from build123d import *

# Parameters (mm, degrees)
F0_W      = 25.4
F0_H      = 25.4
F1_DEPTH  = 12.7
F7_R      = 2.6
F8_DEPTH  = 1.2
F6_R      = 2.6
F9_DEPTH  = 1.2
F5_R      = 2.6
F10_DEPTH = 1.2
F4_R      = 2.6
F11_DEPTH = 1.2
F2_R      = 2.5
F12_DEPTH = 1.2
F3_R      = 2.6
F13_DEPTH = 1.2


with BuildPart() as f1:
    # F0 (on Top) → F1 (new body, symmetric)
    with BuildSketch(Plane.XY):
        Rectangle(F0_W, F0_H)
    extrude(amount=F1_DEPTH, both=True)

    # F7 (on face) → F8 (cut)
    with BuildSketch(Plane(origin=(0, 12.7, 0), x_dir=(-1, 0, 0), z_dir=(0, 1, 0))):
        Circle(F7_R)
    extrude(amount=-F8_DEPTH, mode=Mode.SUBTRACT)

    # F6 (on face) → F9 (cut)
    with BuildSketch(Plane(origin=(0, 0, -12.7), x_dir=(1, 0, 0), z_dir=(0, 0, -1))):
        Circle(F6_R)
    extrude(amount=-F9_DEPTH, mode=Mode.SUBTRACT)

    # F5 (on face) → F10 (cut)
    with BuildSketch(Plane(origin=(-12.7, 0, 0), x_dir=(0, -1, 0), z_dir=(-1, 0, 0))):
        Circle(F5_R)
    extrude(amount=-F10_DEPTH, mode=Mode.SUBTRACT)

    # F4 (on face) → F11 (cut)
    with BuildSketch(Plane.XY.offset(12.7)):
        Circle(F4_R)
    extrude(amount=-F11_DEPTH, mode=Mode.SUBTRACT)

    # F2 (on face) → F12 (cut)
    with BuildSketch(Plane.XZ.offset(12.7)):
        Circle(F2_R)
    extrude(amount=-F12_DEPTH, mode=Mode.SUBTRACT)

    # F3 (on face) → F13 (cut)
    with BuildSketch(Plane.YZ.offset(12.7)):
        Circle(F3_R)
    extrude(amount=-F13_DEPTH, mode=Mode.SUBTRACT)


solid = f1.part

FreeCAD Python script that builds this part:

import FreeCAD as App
import Part
import Sketcher
from FreeCAD import Vector


def add_polygon(sketch, points):
    """Adds a closed chain of lines whose ends are joined by coincident constraints."""
    first, n = sketch.GeometryCount, len(points)
    for a, b in zip(points, points[1:] + points[:1]):
        sketch.addGeometry(Part.LineSegment(App.Vector(*a, 0), App.Vector(*b, 0)), False)
    for i in range(n):
        sketch.addConstraint(Sketcher.Constraint("Coincident", first + i, 2, first + (i + 1) % n, 1))

doc = App.newDocument("Part")
body = doc.addObject("PartDesign::Body", "Body")

# Sketch on XY plane
sketch1 = doc.addObject("Sketcher::SketchObject", "Sketch")
body.addObject(sketch1)
sketch1.AttachmentSupport = (doc.XY_Plane, [""])
sketch1.MapMode = "FlatFace"
add_polygon(sketch1, [(-13, 13), (-13, -13), (13, -13), (13, 13)])  # lines 0-3
sketch1.addConstraint(Sketcher.Constraint("Vertical", 0))
sketch1.addConstraint(Sketcher.Constraint("Horizontal", 1))
sketch1.addConstraint(Sketcher.Constraint("Vertical", 2))
sketch1.addConstraint(Sketcher.Constraint("Horizontal", 3))
sketch1.addConstraint(Sketcher.Constraint("Symmetric", 0, 2, 2, 2, -1, 1))
sketch1.addConstraint(Sketcher.Constraint("Equal", 3, 0))
sketch1.addConstraint(Sketcher.Constraint("DistanceX", 1, 1, 1, 2, 25.4))
pad1 = doc.addObject("PartDesign::Pad", "Pad")
body.addObject(pad1)
pad1.Profile = sketch1
pad1.Length = 25.4
pad1.Midplane = True

# Sketch on XZ plane
sketch2 = doc.addObject("Sketcher::SketchObject", "Sketch001")
body.addObject(sketch2)
sketch2.AttachmentSupport = (doc.XZ_Plane, [""])
sketch2.MapMode = "FlatFace"
sketch2.AttachmentOffset = App.Placement(Vector(0, 0, -12.7), App.Rotation())
sketch2.addGeometry(Part.Circle(Vector(0, 0, 0), Vector(0, 0, 1), 2.6), False)
sketch2.addConstraint(Sketcher.Constraint("Coincident", 0, 3, -1, 1))
sketch2.addConstraint(Sketcher.Constraint("Diameter", 0, 5.2))
pocket1 = doc.addObject("PartDesign::Pocket", "Pocket")
body.addObject(pocket1)
pocket1.Profile = sketch2
pocket1.Length = 1.2
pocket1.Reversed = True

# Sketch on XY plane
sketch3 = doc.addObject("Sketcher::SketchObject", "Sketch002")
body.addObject(sketch3)
sketch3.AttachmentSupport = (doc.XY_Plane, [""])
sketch3.MapMode = "FlatFace"
sketch3.AttachmentOffset = App.Placement(Vector(0, 0, -12.7), App.Rotation())
sketch3.addGeometry(Part.Circle(Vector(0, 0, 0), Vector(0, 0, 1), 2.6), False)
sketch3.addConstraint(Sketcher.Constraint("Coincident", 0, 3, -1, 1))
sketch3.addConstraint(Sketcher.Constraint("Diameter", 0, 5.2))
pocket2 = doc.addObject("PartDesign::Pocket", "Pocket001")
body.addObject(pocket2)
pocket2.Profile = sketch3
pocket2.Length = 1.2
pocket2.Reversed = True

# Sketch on YZ plane
sketch4 = doc.addObject("Sketcher::SketchObject", "Sketch003")
body.addObject(sketch4)
sketch4.AttachmentSupport = (doc.YZ_Plane, [""])
sketch4.MapMode = "FlatFace"
sketch4.AttachmentOffset = App.Placement(Vector(0, 0, -12.7), App.Rotation())
sketch4.addGeometry(Part.Circle(Vector(0, 0, 0), Vector(0, 0, 1), 2.6), False)
sketch4.addConstraint(Sketcher.Constraint("Coincident", 0, 3, -1, 1))
sketch4.addConstraint(Sketcher.Constraint("Diameter", 0, 5.2))
pocket3 = doc.addObject("PartDesign::Pocket", "Pocket002")
body.addObject(pocket3)
pocket3.Profile = sketch4
pocket3.Length = 1.2
pocket3.Reversed = True

# Sketch on XY plane
sketch5 = doc.addObject("Sketcher::SketchObject", "Sketch004")
body.addObject(sketch5)
sketch5.AttachmentSupport = (doc.XY_Plane, [""])
sketch5.MapMode = "FlatFace"
sketch5.AttachmentOffset = App.Placement(Vector(0, 0, 12.7), App.Rotation())
sketch5.addGeometry(Part.Circle(Vector(0, 0, 0), Vector(0, 0, 1), 2.6), False)
sketch5.addConstraint(Sketcher.Constraint("Coincident", 0, 3, -1, 1))
sketch5.addConstraint(Sketcher.Constraint("Diameter", 0, 5.2))
pocket4 = doc.addObject("PartDesign::Pocket", "Pocket003")
body.addObject(pocket4)
pocket4.Profile = sketch5
pocket4.Length = 1.2

# Sketch on XZ plane
sketch6 = doc.addObject("Sketcher::SketchObject", "Sketch005")
body.addObject(sketch6)
sketch6.AttachmentSupport = (doc.XZ_Plane, [""])
sketch6.MapMode = "FlatFace"
sketch6.AttachmentOffset = App.Placement(Vector(0, 0, 12.7), App.Rotation())
sketch6.addGeometry(Part.Circle(Vector(0, 0, 0), Vector(0, 0, 1), 2.5), False)
sketch6.addConstraint(Sketcher.Constraint("Coincident", 0, 3, -1, 1))
sketch6.addConstraint(Sketcher.Constraint("Diameter", 0, 5.0))
pocket5 = doc.addObject("PartDesign::Pocket", "Pocket004")
body.addObject(pocket5)
pocket5.Profile = sketch6
pocket5.Length = 1.2

# Sketch on YZ plane
sketch7 = doc.addObject("Sketcher::SketchObject", "Sketch006")
body.addObject(sketch7)
sketch7.AttachmentSupport = (doc.YZ_Plane, [""])
sketch7.MapMode = "FlatFace"
sketch7.AttachmentOffset = App.Placement(Vector(0, 0, 12.7), App.Rotation())
sketch7.addGeometry(Part.Circle(Vector(0, 0, 0), Vector(0, 0, 1), 2.6), False)
sketch7.addConstraint(Sketcher.Constraint("Coincident", 0, 3, -1, 1))
sketch7.addConstraint(Sketcher.Constraint("Diameter", 0, 5.2))
pocket6 = doc.addObject("PartDesign::Pocket", "Pocket005")
body.addObject(pocket6)
pocket6.Profile = sketch7
pocket6.Length = 1.2

doc.recompute()
